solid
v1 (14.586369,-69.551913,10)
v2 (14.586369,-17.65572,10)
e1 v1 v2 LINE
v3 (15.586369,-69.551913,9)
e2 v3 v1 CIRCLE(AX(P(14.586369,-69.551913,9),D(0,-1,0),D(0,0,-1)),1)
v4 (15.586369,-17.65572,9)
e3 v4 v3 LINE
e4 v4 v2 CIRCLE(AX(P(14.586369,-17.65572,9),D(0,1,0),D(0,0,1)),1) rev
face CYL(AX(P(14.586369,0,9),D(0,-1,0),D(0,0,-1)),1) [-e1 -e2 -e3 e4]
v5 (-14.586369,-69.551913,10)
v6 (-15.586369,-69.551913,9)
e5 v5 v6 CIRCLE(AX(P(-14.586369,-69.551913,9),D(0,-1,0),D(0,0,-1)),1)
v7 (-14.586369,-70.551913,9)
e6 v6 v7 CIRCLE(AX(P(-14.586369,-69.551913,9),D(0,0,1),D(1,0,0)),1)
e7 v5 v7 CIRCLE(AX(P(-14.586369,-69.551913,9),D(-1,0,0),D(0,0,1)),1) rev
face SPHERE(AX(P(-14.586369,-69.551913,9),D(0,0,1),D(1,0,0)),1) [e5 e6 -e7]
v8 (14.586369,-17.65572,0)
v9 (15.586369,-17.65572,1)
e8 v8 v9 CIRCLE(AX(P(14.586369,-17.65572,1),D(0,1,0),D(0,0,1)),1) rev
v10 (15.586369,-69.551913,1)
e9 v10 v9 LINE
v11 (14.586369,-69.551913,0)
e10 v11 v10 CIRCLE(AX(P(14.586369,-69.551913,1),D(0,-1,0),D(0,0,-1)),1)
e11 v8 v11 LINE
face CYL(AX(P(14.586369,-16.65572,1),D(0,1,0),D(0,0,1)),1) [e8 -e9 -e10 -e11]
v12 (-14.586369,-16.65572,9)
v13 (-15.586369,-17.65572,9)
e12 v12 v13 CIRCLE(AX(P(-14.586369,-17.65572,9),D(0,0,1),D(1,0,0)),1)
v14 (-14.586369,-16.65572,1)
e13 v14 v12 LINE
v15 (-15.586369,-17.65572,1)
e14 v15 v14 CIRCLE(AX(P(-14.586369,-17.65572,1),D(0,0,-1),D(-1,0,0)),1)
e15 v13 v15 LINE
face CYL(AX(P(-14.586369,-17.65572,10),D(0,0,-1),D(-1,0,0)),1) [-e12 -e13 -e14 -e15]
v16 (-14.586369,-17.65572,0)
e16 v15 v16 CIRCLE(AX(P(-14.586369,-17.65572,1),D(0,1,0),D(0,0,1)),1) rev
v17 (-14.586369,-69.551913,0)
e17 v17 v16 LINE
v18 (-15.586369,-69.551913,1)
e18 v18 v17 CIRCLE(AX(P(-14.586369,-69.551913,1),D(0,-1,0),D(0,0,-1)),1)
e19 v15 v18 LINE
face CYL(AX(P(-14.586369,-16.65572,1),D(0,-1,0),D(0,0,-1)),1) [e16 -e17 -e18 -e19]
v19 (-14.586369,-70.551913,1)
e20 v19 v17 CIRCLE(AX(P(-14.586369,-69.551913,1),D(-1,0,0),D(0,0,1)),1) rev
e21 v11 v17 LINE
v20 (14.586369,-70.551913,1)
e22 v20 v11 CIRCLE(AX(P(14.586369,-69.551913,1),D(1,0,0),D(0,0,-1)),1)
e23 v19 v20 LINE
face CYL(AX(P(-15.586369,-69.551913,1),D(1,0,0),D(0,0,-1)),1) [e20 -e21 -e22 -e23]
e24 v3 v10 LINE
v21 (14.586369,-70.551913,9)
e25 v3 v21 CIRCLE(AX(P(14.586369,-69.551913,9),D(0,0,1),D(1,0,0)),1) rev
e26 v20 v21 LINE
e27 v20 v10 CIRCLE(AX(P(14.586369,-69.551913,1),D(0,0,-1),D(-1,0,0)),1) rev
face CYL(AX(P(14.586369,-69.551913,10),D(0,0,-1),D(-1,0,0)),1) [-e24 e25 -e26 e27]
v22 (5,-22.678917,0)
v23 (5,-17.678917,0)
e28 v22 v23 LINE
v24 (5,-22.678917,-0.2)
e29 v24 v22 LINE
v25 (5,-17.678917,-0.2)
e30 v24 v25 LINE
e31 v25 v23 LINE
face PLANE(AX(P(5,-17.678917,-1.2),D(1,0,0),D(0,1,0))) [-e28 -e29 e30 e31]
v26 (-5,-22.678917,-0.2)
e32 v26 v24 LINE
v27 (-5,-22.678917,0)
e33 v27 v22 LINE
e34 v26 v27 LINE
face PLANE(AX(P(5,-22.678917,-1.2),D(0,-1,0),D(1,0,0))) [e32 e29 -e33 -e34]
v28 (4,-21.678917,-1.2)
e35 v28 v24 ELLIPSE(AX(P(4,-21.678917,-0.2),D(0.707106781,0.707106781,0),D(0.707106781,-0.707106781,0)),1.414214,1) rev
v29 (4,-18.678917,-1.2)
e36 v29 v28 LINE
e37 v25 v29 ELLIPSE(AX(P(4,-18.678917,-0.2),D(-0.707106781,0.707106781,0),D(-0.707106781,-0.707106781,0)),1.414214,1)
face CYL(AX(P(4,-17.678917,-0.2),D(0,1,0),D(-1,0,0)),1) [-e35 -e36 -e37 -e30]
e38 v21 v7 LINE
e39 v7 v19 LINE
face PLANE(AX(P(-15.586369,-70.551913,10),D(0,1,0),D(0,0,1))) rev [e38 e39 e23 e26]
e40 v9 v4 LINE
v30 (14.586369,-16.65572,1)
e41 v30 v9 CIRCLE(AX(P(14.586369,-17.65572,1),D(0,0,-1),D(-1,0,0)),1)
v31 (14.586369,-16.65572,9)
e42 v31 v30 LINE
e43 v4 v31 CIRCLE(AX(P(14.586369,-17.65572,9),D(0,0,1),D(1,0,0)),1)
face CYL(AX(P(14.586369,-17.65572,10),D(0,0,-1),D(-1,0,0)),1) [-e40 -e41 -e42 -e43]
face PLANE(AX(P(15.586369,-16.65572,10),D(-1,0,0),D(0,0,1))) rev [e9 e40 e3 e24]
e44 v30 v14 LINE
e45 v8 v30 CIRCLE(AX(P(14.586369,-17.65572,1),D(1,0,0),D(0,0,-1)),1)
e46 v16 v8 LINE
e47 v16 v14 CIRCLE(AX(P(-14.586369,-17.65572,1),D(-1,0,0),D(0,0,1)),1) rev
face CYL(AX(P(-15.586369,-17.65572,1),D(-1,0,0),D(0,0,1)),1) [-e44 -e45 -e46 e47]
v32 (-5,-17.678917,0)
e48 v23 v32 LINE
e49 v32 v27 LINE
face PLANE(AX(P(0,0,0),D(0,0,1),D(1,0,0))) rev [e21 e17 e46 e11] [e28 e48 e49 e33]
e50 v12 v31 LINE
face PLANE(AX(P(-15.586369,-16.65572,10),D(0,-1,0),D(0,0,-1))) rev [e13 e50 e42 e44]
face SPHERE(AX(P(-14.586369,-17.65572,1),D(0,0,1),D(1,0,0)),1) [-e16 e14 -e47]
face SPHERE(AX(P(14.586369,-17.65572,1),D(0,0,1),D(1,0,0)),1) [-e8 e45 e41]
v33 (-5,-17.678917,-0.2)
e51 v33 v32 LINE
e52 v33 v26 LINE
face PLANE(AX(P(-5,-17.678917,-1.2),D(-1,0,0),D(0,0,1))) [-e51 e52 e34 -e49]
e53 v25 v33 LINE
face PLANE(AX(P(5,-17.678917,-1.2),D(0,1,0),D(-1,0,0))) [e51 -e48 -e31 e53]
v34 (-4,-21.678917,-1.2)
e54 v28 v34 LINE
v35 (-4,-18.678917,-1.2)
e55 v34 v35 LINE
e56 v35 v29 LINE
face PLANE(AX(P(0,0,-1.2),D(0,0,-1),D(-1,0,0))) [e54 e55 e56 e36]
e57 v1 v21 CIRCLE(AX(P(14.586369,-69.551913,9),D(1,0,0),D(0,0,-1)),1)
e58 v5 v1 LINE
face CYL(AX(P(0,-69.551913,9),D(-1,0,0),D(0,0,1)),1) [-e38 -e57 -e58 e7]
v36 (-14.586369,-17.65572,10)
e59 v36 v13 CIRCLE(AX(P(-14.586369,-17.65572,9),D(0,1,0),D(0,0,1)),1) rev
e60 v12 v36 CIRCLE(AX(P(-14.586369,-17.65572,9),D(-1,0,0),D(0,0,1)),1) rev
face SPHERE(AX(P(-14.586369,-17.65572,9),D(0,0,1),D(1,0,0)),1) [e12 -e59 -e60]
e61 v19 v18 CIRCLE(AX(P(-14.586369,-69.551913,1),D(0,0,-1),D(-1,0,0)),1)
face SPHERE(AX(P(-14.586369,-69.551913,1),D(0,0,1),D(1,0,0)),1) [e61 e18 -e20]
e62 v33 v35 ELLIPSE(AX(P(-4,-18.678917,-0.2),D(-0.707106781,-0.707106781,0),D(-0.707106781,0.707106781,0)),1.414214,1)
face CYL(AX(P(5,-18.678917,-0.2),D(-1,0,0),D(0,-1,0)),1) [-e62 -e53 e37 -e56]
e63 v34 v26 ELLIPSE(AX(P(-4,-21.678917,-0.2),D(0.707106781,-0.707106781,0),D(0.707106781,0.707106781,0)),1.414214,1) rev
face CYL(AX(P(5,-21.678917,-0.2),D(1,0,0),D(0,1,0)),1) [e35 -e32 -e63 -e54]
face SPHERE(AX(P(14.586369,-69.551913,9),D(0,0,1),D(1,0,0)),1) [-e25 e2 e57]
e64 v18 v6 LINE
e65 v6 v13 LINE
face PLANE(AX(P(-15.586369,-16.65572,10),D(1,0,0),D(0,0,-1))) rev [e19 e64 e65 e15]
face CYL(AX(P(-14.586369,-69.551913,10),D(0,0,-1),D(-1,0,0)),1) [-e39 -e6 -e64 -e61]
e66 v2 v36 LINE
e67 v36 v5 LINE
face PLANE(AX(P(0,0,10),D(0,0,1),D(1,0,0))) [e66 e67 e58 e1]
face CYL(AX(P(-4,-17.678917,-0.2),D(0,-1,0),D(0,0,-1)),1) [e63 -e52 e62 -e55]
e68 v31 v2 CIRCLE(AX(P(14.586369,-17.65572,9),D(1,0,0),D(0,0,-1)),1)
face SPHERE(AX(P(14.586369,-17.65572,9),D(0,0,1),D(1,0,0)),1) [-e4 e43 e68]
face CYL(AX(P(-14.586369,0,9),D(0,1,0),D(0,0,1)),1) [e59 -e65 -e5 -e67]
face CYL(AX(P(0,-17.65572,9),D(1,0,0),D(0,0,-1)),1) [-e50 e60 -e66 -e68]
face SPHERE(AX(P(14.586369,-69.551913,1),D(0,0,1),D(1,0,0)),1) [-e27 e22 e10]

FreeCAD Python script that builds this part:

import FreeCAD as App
import Part
import Sketcher


def edges_at(feature, points):
    """Names of the edges that pass closest to the given points."""
    edges = feature.Shape.Edges
    near = lambda p: min(range(len(edges)), key=lambda i: edges[i].distToShape(Part.Vertex(*p))[0])
    return sorted({f"Edge{near(p) + 1}" for p in points})


def add_polygon(sketch, points):
    """Adds a closed chain of lines whose ends are joined by coincident constraints."""
    first, n = sketch.GeometryCount, len(points)
    for a, b in zip(points, points[1:] + points[:1]):
        sketch.addGeometry(Part.LineSegment(App.Vector(*a, 0), App.Vector(*b, 0)), False)
    for i in range(n):
        sketch.addConstraint(Sketcher.Constraint("Coincident", first + i, 2, first + (i + 1) % n, 1))

doc = App.newDocument("Part")
body = doc.addObject("PartDesign::Body", "Body")

# Sketch on XY plane
sketch1 = body.newObject("Sketcher::SketchObject", "Sketch")
sketch1.AttachmentSupport = (doc.getObject("XY_Plane"), [""])
sketch1.MapMode = "FlatFace"
add_polygon(sketch1, [(-16, -17), (-16, -71), (16, -71), (16, -17)])  # lines 0-3
sketch1.addConstraint(Sketcher.Constraint("Vertical", 0))
sketch1.addConstraint(Sketcher.Constraint("Horizontal", 1))
sketch1.addConstraint(Sketcher.Constraint("Vertical", 2))
sketch1.addConstraint(Sketcher.Constraint("Horizontal", 3))
sketch1.addConstraint(Sketcher.Constraint("DistanceX", 1, 1, 1, 2, 31.172739))
sketch1.addConstraint(Sketcher.Constraint("DistanceY", 0, 2, 0, 1, 53.896193))
sketch1.addConstraint(Sketcher.Constraint("DistanceX", 0, 2, -1, 1, 15.586369))
sketch1.addConstraint(Sketcher.Constraint("DistanceY", 2, 2, -1, 1, 16.65572))
pad1 = body.newObject("PartDesign::Pad", "Pad")
pad1.Profile = sketch1
pad1.Length = 10

# Sketch on XY plane
sketch2 = body.newObject("Sketcher::SketchObject", "Sketch001")
sketch2.AttachmentSupport = (doc.getObject("XY_Plane"), [""])
sketch2.MapMode = "FlatFace"
add_polygon(sketch2, [(-5, -18), (-5, -23), (5, -23), (5, -18)])  # lines 0-3
sketch2.addConstraint(Sketcher.Constraint("Vertical", 0))
sketch2.addConstraint(Sketcher.Constraint("Horizontal", 1))
sketch2.addConstraint(Sketcher.Constraint("Vertical", 2))
sketch2.addConstraint(Sketcher.Constraint("Horizontal", 3))
sketch2.addConstraint(Sketcher.Constraint("DistanceX", 1, 1, 1, 2, 10.0))
sketch2.addConstraint(Sketcher.Constraint("DistanceY", 0, 2, 0, 1, 5.0))
sketch2.addConstraint(Sketcher.Constraint("DistanceX", 0, 2, -1, 1, 5.0))
sketch2.addConstraint(Sketcher.Constraint("DistanceY", 0, 2, -1, 1, 22.678917))
pad2 = body.newObject("PartDesign::Pad", "Pad001")
pad2.Profile = sketch2
pad2.Length = 1.2
pad2.Reversed = True
doc.recompute()

fillet = body.newObject("PartDesign::Fillet", "Fillet")
fillet.Base = (pad2, edges_at(pad2, [
    (-5, -20.179, -1.2),
    (0, -17.679, -1.2),
    (5, -20.179, -1.2),
    (0, -22.679, -1.2),
]))
fillet.Radius = 1
doc.recompute()

fillet2 = body.newObject("PartDesign::Fillet", "Fillet001")
fillet2.Base = (fillet, edges_at(fillet, [
    (-15.586, -43.604, 10),
    (0, -70.552, 10),
    (15.586, -43.604, 10),
    (0, -70.552, 0),
    (-15.586, -43.604, 0),
    (0, -16.656, 0),
    (15.586, -43.604, 0),
    (15.586, -70.552, 5),
    (-15.586, -70.552, 5),
    (-15.586, -16.656, 5),
    (15.586, -16.656, 5),
    (0, -16.656, 10),
]))
fillet2.Radius = 1

doc.recompute()
